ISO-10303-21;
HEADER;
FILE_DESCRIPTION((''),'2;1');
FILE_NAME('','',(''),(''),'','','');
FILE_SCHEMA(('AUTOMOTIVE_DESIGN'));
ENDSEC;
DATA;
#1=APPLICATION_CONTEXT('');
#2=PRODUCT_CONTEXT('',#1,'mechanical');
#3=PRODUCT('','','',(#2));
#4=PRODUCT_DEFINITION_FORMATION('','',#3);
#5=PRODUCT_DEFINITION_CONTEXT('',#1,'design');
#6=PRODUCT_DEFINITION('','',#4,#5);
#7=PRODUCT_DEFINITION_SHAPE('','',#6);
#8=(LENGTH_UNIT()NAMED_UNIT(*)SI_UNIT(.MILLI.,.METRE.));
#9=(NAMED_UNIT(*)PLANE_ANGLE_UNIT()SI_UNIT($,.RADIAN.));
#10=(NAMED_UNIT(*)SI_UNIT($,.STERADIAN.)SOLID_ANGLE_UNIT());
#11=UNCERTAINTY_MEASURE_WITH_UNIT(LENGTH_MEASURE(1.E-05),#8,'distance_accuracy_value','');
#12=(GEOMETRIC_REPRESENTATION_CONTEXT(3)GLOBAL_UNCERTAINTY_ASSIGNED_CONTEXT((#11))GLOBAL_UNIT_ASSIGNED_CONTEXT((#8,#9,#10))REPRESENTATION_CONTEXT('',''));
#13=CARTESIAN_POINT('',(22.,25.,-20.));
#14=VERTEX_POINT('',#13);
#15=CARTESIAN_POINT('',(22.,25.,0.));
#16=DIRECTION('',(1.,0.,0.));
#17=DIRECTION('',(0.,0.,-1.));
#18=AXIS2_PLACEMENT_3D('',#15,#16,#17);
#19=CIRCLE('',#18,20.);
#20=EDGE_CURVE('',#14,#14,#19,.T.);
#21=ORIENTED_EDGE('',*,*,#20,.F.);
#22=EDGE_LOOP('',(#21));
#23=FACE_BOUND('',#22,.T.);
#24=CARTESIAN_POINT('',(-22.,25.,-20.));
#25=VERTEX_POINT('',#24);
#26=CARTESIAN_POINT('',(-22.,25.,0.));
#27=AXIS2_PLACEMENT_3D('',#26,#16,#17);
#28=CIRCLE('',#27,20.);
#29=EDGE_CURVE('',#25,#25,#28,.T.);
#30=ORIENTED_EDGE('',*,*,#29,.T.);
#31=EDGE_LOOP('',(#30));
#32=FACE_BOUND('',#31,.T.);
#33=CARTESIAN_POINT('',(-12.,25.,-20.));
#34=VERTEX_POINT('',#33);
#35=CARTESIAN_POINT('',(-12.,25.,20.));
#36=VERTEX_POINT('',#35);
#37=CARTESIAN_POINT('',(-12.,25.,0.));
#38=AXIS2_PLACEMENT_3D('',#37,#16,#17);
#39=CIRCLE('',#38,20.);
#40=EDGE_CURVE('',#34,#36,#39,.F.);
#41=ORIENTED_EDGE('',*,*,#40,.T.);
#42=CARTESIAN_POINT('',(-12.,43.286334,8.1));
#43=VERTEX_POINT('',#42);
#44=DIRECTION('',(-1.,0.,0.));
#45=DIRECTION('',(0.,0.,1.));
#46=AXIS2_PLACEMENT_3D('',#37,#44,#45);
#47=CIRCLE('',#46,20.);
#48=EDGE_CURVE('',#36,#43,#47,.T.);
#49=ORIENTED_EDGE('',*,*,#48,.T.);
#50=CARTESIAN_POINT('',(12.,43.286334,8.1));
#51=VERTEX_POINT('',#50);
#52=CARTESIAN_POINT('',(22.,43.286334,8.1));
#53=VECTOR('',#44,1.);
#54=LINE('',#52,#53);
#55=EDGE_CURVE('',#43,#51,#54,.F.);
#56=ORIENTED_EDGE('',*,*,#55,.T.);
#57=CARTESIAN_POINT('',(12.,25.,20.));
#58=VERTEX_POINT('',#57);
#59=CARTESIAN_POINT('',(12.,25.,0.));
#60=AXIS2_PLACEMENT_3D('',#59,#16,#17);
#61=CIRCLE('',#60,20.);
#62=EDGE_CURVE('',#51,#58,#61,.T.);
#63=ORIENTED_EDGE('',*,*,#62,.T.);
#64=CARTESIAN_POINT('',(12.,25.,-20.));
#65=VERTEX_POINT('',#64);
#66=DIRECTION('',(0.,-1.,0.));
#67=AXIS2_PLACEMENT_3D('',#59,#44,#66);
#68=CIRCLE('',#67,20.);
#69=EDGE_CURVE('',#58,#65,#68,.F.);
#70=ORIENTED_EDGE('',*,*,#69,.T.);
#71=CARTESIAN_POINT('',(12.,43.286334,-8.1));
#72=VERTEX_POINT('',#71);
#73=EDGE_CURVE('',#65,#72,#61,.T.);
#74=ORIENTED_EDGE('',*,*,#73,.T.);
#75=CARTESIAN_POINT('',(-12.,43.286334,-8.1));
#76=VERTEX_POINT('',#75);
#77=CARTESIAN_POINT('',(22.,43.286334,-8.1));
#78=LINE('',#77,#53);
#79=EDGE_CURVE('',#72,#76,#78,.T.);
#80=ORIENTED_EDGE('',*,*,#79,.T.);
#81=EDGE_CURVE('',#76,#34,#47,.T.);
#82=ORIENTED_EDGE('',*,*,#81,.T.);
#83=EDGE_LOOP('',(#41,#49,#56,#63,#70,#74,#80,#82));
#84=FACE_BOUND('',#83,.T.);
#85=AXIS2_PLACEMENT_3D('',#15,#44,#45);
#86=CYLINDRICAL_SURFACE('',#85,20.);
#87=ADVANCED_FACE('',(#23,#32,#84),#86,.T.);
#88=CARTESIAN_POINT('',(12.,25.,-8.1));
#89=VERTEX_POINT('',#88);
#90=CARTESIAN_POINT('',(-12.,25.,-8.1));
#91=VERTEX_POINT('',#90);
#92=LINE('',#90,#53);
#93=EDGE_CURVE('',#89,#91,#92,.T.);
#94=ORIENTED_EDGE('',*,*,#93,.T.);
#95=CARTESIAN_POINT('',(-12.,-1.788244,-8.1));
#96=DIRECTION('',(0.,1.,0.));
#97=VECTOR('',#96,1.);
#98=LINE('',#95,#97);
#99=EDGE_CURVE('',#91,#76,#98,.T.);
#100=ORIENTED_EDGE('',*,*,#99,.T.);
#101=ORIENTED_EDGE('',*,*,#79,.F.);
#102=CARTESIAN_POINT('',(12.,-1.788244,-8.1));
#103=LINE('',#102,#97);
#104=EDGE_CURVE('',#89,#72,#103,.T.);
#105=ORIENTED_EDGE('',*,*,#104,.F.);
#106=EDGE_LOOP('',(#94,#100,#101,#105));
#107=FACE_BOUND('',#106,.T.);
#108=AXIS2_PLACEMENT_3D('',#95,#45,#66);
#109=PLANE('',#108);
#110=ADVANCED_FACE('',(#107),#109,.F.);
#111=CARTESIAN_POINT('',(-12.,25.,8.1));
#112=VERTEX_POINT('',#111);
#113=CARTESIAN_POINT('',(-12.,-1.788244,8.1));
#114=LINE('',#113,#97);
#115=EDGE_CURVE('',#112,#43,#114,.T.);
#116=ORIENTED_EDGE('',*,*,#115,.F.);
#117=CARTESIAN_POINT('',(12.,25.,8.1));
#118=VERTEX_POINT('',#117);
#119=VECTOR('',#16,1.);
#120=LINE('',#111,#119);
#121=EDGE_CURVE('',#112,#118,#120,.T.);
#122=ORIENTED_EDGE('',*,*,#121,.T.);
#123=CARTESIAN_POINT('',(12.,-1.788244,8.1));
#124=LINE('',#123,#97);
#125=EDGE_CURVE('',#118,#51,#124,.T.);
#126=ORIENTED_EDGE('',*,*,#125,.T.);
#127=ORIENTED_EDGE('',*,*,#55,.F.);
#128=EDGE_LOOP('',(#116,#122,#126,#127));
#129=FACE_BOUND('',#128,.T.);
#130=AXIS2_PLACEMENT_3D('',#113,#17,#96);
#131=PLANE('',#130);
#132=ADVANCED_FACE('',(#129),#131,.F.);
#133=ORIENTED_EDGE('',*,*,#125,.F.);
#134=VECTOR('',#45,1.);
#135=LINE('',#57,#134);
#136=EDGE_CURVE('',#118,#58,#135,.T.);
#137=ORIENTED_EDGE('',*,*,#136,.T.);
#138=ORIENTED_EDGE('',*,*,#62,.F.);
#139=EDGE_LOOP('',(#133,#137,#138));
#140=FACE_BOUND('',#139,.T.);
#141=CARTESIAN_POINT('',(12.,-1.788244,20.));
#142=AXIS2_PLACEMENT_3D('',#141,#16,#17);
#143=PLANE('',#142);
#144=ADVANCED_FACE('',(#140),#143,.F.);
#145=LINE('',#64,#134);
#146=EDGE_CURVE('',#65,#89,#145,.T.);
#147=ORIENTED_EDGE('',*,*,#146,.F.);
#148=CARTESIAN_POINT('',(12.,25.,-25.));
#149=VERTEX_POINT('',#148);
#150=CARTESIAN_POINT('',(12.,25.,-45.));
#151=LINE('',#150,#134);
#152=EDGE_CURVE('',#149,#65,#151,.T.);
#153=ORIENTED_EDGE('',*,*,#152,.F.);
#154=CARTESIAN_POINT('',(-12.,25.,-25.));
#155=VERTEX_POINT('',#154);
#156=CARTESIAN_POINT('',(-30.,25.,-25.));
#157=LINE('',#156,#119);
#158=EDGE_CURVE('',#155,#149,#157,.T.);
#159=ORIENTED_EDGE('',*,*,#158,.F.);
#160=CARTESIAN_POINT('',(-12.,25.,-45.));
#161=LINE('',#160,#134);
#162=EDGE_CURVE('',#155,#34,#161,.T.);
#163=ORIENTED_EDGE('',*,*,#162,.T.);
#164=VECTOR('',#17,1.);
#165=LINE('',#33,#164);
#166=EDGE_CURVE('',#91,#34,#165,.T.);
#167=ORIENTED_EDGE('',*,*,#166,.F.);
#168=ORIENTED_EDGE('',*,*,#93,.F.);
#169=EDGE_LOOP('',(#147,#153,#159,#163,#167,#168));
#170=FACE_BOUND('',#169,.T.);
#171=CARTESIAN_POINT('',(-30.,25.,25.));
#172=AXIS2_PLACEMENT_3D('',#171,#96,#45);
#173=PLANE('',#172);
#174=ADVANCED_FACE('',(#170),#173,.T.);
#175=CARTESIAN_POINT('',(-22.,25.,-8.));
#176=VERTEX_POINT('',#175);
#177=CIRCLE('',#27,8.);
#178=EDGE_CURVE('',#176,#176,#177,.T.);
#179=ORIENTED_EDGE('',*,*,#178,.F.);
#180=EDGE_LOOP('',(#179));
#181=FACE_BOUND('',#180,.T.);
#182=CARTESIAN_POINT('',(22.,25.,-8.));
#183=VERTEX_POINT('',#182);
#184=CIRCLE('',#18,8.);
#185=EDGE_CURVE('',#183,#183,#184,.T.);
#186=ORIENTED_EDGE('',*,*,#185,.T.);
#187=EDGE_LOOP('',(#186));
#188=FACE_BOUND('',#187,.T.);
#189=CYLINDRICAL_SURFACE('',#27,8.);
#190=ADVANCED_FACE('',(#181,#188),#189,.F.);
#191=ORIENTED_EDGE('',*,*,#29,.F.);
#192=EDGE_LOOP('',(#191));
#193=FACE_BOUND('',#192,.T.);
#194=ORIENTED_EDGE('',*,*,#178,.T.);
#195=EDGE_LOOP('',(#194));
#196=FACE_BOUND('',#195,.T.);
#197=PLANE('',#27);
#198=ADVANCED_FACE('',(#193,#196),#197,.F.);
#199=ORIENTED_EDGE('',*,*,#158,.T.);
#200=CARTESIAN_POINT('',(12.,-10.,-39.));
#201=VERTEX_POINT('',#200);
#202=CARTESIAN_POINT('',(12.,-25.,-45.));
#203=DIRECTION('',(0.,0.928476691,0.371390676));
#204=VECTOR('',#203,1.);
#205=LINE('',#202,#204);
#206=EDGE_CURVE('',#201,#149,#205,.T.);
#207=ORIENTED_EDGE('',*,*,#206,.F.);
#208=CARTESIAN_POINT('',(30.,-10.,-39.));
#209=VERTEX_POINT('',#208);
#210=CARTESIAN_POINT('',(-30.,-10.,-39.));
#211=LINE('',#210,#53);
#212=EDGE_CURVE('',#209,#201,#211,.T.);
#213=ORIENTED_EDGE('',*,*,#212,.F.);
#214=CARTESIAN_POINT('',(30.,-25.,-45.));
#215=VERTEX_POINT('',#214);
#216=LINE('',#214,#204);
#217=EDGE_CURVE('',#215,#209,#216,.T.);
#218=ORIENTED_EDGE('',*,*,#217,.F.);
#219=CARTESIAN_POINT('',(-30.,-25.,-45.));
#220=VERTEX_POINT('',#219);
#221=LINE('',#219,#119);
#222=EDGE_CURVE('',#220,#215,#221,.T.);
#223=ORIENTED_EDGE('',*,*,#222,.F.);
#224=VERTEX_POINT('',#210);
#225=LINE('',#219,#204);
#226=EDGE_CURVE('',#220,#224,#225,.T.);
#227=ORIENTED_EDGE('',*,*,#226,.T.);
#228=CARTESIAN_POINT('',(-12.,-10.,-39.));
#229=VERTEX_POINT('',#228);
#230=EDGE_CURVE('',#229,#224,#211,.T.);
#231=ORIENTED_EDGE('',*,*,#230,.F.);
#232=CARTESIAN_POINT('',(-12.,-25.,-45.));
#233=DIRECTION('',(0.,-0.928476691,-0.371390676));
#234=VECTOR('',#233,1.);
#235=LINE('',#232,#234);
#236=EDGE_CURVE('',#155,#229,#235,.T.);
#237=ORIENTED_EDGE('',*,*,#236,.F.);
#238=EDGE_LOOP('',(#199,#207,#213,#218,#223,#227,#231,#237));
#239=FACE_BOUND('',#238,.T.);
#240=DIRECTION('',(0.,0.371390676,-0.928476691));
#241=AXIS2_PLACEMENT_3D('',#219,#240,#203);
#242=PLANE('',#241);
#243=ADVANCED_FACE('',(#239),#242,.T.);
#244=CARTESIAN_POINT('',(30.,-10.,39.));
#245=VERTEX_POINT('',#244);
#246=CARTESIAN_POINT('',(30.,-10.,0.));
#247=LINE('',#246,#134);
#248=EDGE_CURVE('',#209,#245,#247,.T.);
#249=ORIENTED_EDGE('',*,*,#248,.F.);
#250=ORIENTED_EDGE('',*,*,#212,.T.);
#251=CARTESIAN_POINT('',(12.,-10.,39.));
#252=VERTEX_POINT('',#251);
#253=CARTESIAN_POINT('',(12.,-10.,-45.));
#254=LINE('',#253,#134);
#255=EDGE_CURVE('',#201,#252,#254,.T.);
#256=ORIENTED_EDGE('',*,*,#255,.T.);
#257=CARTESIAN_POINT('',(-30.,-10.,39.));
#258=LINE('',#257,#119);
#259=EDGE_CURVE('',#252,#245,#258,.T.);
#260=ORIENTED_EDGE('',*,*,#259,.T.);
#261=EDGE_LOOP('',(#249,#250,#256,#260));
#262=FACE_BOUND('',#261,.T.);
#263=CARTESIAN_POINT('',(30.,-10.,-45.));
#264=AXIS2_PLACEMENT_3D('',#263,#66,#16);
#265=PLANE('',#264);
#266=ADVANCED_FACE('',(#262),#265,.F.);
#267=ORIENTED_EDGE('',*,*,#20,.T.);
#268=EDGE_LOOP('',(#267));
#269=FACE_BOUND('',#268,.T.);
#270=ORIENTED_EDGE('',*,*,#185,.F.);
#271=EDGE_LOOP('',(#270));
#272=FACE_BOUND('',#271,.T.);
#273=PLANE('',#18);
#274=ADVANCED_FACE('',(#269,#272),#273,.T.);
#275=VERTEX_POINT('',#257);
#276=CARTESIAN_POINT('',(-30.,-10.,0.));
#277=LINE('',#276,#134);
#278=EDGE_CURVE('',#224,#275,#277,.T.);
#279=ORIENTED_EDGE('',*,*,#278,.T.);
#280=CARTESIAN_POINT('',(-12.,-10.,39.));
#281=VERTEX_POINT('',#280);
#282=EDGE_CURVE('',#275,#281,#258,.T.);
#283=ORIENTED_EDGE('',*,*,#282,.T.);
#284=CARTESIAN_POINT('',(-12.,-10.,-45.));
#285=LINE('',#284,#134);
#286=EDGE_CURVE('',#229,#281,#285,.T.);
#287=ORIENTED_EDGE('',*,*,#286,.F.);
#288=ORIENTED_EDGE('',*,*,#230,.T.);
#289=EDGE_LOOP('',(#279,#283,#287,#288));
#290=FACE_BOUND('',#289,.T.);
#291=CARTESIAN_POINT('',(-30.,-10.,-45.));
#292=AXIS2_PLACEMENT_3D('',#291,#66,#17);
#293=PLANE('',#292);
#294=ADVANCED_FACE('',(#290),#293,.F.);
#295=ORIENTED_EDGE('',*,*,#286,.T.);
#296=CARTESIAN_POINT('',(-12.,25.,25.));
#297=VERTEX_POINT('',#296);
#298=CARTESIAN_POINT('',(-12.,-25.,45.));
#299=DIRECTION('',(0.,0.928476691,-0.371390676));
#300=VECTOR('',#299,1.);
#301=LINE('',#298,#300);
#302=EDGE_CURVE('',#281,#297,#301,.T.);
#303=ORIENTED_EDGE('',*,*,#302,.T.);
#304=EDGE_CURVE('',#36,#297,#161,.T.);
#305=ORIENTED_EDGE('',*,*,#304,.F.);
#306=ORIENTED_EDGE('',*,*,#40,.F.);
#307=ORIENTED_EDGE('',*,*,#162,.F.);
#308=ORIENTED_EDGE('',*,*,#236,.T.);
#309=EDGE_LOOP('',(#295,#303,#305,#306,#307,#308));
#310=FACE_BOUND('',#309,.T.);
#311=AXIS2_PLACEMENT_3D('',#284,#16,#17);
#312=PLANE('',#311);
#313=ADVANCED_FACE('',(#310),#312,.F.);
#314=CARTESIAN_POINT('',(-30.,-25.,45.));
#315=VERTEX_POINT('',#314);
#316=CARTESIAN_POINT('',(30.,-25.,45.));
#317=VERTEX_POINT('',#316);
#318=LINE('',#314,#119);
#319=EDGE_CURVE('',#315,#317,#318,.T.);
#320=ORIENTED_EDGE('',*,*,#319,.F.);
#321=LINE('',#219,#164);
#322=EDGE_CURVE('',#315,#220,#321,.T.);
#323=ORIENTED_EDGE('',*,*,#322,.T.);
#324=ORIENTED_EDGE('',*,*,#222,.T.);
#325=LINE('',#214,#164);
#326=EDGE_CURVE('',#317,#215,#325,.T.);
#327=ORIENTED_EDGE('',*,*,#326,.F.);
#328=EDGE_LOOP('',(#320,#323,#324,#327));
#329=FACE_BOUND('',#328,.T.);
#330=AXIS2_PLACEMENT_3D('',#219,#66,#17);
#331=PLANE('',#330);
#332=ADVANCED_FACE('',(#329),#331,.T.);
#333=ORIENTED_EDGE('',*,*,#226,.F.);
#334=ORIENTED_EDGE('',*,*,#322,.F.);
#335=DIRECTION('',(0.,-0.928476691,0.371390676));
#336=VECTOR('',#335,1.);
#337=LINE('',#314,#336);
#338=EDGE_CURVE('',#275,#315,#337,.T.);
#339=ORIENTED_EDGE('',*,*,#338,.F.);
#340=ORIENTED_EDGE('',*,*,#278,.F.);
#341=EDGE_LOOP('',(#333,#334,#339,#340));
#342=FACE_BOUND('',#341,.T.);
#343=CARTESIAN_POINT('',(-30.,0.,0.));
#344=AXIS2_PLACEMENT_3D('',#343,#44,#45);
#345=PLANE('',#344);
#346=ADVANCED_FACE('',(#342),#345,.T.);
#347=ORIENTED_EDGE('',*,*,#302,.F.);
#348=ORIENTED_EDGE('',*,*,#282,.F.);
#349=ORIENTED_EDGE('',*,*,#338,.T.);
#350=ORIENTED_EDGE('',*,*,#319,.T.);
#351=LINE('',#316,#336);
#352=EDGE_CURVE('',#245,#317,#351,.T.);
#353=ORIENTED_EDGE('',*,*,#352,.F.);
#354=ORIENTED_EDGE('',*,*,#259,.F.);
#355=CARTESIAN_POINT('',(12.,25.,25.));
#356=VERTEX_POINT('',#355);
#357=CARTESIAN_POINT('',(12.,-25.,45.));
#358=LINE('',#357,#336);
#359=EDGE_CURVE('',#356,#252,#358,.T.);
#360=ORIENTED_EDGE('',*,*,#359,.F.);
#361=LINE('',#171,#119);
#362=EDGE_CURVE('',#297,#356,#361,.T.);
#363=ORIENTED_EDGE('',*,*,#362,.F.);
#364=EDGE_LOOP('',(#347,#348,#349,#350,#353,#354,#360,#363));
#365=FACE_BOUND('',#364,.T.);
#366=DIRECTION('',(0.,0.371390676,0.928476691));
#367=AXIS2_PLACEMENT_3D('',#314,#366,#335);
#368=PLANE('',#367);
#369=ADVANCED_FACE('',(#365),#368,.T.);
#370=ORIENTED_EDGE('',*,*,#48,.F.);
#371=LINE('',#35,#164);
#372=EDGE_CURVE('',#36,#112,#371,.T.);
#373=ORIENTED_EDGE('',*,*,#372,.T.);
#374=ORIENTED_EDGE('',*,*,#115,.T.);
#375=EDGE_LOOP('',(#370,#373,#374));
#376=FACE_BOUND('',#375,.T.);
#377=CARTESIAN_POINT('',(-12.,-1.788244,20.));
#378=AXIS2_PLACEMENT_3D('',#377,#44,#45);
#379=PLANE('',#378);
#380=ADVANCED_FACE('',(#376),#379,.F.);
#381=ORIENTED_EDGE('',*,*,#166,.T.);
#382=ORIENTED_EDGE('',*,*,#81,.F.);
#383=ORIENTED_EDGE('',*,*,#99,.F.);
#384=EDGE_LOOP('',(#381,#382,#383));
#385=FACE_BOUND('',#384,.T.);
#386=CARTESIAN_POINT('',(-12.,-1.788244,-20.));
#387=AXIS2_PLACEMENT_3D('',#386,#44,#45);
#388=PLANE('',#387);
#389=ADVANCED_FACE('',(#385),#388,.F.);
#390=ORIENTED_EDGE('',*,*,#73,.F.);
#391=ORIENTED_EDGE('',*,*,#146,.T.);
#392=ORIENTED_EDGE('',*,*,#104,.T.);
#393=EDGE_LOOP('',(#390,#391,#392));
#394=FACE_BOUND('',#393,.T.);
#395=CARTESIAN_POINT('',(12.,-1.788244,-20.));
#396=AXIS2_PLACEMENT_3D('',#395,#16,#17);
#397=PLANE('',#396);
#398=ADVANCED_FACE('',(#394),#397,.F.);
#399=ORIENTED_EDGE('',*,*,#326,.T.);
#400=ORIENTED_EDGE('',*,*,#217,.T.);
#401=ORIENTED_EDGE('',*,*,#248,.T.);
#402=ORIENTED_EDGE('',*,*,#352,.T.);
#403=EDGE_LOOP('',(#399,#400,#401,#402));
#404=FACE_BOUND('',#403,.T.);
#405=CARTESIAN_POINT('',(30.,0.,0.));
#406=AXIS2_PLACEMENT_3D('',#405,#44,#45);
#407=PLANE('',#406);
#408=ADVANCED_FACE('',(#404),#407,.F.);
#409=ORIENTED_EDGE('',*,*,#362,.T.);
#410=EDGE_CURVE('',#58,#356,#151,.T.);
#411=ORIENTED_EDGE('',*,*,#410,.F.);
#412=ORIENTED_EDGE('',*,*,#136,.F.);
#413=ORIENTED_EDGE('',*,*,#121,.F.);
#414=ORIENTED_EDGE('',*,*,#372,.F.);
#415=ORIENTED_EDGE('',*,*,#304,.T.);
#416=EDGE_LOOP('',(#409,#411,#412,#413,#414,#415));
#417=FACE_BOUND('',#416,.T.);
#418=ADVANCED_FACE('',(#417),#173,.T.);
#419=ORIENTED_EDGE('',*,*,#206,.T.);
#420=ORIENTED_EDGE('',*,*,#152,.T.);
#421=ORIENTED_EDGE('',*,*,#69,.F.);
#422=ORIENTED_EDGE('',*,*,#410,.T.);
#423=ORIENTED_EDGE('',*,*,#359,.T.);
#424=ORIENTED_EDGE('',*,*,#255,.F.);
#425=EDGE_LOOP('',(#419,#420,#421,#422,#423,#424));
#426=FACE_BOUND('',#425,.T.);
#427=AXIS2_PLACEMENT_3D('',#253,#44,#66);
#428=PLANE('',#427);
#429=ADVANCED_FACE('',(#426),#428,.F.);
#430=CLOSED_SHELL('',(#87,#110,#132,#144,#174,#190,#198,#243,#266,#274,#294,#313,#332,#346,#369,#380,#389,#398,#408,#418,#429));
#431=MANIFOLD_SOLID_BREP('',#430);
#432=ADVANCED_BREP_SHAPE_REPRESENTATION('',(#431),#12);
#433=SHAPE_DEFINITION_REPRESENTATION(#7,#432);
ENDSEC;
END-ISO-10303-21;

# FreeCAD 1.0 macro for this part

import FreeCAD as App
import Part
import Sketcher

V = App.Vector
Q = App.Units.Quantity

doc = App.newDocument("Part")
body = doc.addObject("PartDesign::Body", "Body")

# Sketch on YZ plane
sketch1 = doc.addObject("Sketcher::SketchObject", "Sketch")
body.addObject(sketch1)
sketch1.AttachmentSupport = (doc.YZ_Plane, [""])
sketch1.MapMode = "FlatFace"
sketch1.addGeometry([
    Part.LineSegment(V(-25, 45, 0), V(-25, -45, 0)),
    Part.LineSegment(V(-25, -45, 0), V(25, -25, 0)),
    Part.LineSegment(V(25, -25, 0), V(25, 25, 0)),
    Part.LineSegment(V(25, 25, 0), V(-25, 45, 0)),
], False)
sketch1.addConstraint([
    Sketcher.Constraint("Coincident", 0, 2, 1, 1),
    Sketcher.Constraint("Coincident", 1, 2, 2, 1),
    Sketcher.Constraint("Coincident", 2, 2, 3, 1),
    Sketcher.Constraint("Coincident", 3, 2, 0, 1),
    Sketcher.Constraint("Vertical", 0),
    Sketcher.Constraint("Vertical", 2),
    Sketcher.Constraint("Equal", 1, 3),
    Sketcher.Constraint("DistanceY", 0, 2, 0, 1, Q("90 mm")),
    Sketcher.Constraint("DistanceY", 2, 1, 2, 2, Q("50 mm")),
    Sketcher.Constraint("DistanceX", 0, 2, -1, 1, Q("25 mm")),
    Sketcher.Constraint("DistanceY", 0, 2, -1, 1, Q("45 mm")),
    Sketcher.Constraint("DistanceX", -1, 1, 1, 2, Q("25 mm")),
])
pad1 = doc.addObject("PartDesign::Pad", "Pad")
body.addObject(pad1)
pad1.Profile = sketch1
pad1.Length = 60
pad1.Midplane = True

# Sketch on XY plane
sketch2 = doc.addObject("Sketcher::SketchObject", "Sketch001")
body.addObject(sketch2)
sketch2.AttachmentSupport = (doc.XY_Plane, [""])
sketch2.MapMode = "FlatFace"
sketch2.AttachmentOffset = App.Placement(V(0, 0, 45), App.Rotation())
sketch2.addGeometry([
    Part.LineSegment(V(-30, 25, 0), V(-30, -10, 0)),  # 0
    Part.LineSegment(V(-30, -10, 0), V(-12, -10, 0)),  # 1
    Part.LineSegment(V(-12, -10, 0), V(-12, 25, 0)),  # 2
    Part.LineSegment(V(-12, 25, 0), V(-30, 25, 0)),  # 3
    Part.LineSegment(V(12, 25, 0), V(12, -10, 0)),  # 4
    Part.LineSegment(V(12, -10, 0), V(30, -10, 0)),  # 5
    Part.LineSegment(V(30, -10, 0), V(30, 25, 0)),  # 6
    Part.LineSegment(V(30, 25, 0), V(12, 25, 0)),  # 7
], False)
sketch2.addConstraint([
    Sketcher.Constraint("Coincident", 0, 2, 1, 1),
    Sketcher.Constraint("Coincident", 1, 2, 2, 1),
    Sketcher.Constraint("Coincident", 2, 2, 3, 1),
    Sketcher.Constraint("Coincident", 3, 2, 0, 1),
    Sketcher.Constraint("Coincident", 4, 2, 5, 1),
    Sketcher.Constraint("Coincident", 5, 2, 6, 1),
    Sketcher.Constraint("Coincident", 6, 2, 7, 1),
    Sketcher.Constraint("Coincident", 7, 2, 4, 1),
    Sketcher.Constraint("Vertical", 0),
    Sketcher.Constraint("Horizontal", 1),
    Sketcher.Constraint("Vertical", 2),
    Sketcher.Constraint("Horizontal", 3),
    Sketcher.Constraint("Vertical", 4),
    Sketcher.Constraint("Horizontal", 5),
    Sketcher.Constraint("Vertical", 6),
    Sketcher.Constraint("Horizontal", 7),
    Sketcher.Constraint("Symmetric", 1, 2, 4, 2, -2),
    Sketcher.Constraint("Symmetric", 3, 2, 6, 2, -2),
    Sketcher.Constraint("DistanceX", 1, 1, 1, 2, Q("18 mm")),
    Sketcher.Constraint("DistanceY", 0, 2, 0, 1, Q("35 mm")),
    Sketcher.Constraint("DistanceX", 0, 2, -1, 1, Q("30 mm")),
    Sketcher.Constraint("DistanceY", 0, 2, -1, 1, Q("10 mm")),
])
pocket1 = doc.addObject("PartDesign::Pocket", "Pocket")
body.addObject(pocket1)
pocket1.Profile = sketch2
pocket1.Type = "ThroughAll"

# Sketch on YZ plane
sketch3 = doc.addObject("Sketcher::SketchObject", "Sketch002")
body.addObject(sketch3)
sketch3.AttachmentSupport = (doc.YZ_Plane, [""])
sketch3.MapMode = "FlatFace"
sketch3.addGeometry(Part.Circle(V(25, 0, 0), V(0, 0, 1), 20), False)
sketch3.addConstraint([
    Sketcher.Constraint("PointOnObject", 0, 3, -1),
    Sketcher.Constraint("Diameter", 0, Q("40 mm")),
    Sketcher.Constraint("DistanceX", -1, 1, 0, 3, Q("25 mm")),
])
pad2 = doc.addObject("PartDesign::Pad", "Pad001")
body.addObject(pad2)
pad2.Profile = sketch3
pad2.Length = 44
pad2.Midplane = True

# Sketch on YZ plane
sketch4 = doc.addObject("Sketcher::SketchObject", "Sketch003")
body.addObject(sketch4)
sketch4.AttachmentSupport = (doc.YZ_Plane, [""])
sketch4.MapMode = "FlatFace"
sketch4.addGeometry(Part.Circle(V(25, 0, 0), V(0, 0, 1), 8), False)
sketch4.addConstraint([
    Sketcher.Constraint("PointOnObject", 0, 3, -1),
    Sketcher.Constraint("Diameter", 0, Q("16 mm")),
    Sketcher.Constraint("DistanceX", -1, 1, 0, 3, Q("25 mm")),
])
pocket2 = doc.addObject("PartDesign::Pocket", "Pocket001")
body.addObject(pocket2)
pocket2.Profile = sketch4
pocket2.Length = 44
pocket2.Midplane = True

# Sketch on XZ plane
sketch5 = doc.addObject("Sketcher::SketchObject", "Sketch004")
body.addObject(sketch5)
sketch5.AttachmentSupport = (doc.XZ_Plane, [""])
sketch5.MapMode = "FlatFace"
sketch5.AttachmentOffset = App.Placement(V(0, 0, -45), App.Rotation())
sketch5.addGeometry([
    Part.LineSegment(V(-12, -20, 0), V(-12, -8, 0)),  # 0
    Part.LineSegment(V(-12, -8, 0), V(12, -8, 0)),  # 1
    Part.LineSegment(V(12, -8, 0), V(12, -20, 0)),  # 2
    Part.LineSegment(V(12, -20, 0), V(-12, -20, 0)),  # 3
    Part.LineSegment(V(-12, 8, 0), V(-12, 20, 0)),  # 4
    Part.LineSegment(V(-12, 20, 0), V(12, 20, 0)),  # 5
    Part.LineSegment(V(12, 20, 0), V(12, 8, 0)),  # 6
    Part.LineSegment(V(12, 8, 0), V(-12, 8, 0)),  # 7
], False)
sketch5.addConstraint([
    Sketcher.Constraint("Coincident", 0, 2, 1, 1),
    Sketcher.Constraint("Coincident", 1, 2, 2, 1),
    Sketcher.Constraint("Coincident", 2, 2, 3, 1),
    Sketcher.Constraint("Coincident", 3, 2, 0, 1),
    Sketcher.Constraint("Coincident", 4, 2, 5, 1),
    Sketcher.Constraint("Coincident", 5, 2, 6, 1),
    Sketcher.Constraint("Coincident", 6, 2, 7, 1),
    Sketcher.Constraint("Coincident", 7, 2, 4, 1),
    Sketcher.Constraint("Vertical", 0),
    Sketcher.Constraint("Horizontal", 1),
    Sketcher.Constraint("Vertical", 2),
    Sketcher.Constraint("Horizontal", 3),
    Sketcher.Constraint("Vertical", 4),
    Sketcher.Constraint("Horizontal", 5),
    Sketcher.Constraint("Vertical", 6),
    Sketcher.Constraint("Horizontal", 7),
    Sketcher.Constraint("Symmetric", 2, 2, 4, 2, -1, 1),
    Sketcher.Constraint("Symmetric", 0, 2, 6, 2, -1, 1),
    Sketcher.Constraint("Vertical", 3, 2, 4, 2),
    Sketcher.Constraint("DistanceX", 1, 1, 1, 2, Q("24 mm")),
    Sketcher.Constraint("DistanceY", 0, 1, 0, 2, Q("11.9 mm")),
    Sketcher.Constraint("DistanceY", 2, 2, -1, 1, Q("20 mm")),
])
pocket3 = doc.addObject("PartDesign::Pocket", "Pocket002")
body.addObject(pocket3)
pocket3.Profile = sketch5
pocket3.Length = 20
pocket3.Reversed = True

doc.recompute()
